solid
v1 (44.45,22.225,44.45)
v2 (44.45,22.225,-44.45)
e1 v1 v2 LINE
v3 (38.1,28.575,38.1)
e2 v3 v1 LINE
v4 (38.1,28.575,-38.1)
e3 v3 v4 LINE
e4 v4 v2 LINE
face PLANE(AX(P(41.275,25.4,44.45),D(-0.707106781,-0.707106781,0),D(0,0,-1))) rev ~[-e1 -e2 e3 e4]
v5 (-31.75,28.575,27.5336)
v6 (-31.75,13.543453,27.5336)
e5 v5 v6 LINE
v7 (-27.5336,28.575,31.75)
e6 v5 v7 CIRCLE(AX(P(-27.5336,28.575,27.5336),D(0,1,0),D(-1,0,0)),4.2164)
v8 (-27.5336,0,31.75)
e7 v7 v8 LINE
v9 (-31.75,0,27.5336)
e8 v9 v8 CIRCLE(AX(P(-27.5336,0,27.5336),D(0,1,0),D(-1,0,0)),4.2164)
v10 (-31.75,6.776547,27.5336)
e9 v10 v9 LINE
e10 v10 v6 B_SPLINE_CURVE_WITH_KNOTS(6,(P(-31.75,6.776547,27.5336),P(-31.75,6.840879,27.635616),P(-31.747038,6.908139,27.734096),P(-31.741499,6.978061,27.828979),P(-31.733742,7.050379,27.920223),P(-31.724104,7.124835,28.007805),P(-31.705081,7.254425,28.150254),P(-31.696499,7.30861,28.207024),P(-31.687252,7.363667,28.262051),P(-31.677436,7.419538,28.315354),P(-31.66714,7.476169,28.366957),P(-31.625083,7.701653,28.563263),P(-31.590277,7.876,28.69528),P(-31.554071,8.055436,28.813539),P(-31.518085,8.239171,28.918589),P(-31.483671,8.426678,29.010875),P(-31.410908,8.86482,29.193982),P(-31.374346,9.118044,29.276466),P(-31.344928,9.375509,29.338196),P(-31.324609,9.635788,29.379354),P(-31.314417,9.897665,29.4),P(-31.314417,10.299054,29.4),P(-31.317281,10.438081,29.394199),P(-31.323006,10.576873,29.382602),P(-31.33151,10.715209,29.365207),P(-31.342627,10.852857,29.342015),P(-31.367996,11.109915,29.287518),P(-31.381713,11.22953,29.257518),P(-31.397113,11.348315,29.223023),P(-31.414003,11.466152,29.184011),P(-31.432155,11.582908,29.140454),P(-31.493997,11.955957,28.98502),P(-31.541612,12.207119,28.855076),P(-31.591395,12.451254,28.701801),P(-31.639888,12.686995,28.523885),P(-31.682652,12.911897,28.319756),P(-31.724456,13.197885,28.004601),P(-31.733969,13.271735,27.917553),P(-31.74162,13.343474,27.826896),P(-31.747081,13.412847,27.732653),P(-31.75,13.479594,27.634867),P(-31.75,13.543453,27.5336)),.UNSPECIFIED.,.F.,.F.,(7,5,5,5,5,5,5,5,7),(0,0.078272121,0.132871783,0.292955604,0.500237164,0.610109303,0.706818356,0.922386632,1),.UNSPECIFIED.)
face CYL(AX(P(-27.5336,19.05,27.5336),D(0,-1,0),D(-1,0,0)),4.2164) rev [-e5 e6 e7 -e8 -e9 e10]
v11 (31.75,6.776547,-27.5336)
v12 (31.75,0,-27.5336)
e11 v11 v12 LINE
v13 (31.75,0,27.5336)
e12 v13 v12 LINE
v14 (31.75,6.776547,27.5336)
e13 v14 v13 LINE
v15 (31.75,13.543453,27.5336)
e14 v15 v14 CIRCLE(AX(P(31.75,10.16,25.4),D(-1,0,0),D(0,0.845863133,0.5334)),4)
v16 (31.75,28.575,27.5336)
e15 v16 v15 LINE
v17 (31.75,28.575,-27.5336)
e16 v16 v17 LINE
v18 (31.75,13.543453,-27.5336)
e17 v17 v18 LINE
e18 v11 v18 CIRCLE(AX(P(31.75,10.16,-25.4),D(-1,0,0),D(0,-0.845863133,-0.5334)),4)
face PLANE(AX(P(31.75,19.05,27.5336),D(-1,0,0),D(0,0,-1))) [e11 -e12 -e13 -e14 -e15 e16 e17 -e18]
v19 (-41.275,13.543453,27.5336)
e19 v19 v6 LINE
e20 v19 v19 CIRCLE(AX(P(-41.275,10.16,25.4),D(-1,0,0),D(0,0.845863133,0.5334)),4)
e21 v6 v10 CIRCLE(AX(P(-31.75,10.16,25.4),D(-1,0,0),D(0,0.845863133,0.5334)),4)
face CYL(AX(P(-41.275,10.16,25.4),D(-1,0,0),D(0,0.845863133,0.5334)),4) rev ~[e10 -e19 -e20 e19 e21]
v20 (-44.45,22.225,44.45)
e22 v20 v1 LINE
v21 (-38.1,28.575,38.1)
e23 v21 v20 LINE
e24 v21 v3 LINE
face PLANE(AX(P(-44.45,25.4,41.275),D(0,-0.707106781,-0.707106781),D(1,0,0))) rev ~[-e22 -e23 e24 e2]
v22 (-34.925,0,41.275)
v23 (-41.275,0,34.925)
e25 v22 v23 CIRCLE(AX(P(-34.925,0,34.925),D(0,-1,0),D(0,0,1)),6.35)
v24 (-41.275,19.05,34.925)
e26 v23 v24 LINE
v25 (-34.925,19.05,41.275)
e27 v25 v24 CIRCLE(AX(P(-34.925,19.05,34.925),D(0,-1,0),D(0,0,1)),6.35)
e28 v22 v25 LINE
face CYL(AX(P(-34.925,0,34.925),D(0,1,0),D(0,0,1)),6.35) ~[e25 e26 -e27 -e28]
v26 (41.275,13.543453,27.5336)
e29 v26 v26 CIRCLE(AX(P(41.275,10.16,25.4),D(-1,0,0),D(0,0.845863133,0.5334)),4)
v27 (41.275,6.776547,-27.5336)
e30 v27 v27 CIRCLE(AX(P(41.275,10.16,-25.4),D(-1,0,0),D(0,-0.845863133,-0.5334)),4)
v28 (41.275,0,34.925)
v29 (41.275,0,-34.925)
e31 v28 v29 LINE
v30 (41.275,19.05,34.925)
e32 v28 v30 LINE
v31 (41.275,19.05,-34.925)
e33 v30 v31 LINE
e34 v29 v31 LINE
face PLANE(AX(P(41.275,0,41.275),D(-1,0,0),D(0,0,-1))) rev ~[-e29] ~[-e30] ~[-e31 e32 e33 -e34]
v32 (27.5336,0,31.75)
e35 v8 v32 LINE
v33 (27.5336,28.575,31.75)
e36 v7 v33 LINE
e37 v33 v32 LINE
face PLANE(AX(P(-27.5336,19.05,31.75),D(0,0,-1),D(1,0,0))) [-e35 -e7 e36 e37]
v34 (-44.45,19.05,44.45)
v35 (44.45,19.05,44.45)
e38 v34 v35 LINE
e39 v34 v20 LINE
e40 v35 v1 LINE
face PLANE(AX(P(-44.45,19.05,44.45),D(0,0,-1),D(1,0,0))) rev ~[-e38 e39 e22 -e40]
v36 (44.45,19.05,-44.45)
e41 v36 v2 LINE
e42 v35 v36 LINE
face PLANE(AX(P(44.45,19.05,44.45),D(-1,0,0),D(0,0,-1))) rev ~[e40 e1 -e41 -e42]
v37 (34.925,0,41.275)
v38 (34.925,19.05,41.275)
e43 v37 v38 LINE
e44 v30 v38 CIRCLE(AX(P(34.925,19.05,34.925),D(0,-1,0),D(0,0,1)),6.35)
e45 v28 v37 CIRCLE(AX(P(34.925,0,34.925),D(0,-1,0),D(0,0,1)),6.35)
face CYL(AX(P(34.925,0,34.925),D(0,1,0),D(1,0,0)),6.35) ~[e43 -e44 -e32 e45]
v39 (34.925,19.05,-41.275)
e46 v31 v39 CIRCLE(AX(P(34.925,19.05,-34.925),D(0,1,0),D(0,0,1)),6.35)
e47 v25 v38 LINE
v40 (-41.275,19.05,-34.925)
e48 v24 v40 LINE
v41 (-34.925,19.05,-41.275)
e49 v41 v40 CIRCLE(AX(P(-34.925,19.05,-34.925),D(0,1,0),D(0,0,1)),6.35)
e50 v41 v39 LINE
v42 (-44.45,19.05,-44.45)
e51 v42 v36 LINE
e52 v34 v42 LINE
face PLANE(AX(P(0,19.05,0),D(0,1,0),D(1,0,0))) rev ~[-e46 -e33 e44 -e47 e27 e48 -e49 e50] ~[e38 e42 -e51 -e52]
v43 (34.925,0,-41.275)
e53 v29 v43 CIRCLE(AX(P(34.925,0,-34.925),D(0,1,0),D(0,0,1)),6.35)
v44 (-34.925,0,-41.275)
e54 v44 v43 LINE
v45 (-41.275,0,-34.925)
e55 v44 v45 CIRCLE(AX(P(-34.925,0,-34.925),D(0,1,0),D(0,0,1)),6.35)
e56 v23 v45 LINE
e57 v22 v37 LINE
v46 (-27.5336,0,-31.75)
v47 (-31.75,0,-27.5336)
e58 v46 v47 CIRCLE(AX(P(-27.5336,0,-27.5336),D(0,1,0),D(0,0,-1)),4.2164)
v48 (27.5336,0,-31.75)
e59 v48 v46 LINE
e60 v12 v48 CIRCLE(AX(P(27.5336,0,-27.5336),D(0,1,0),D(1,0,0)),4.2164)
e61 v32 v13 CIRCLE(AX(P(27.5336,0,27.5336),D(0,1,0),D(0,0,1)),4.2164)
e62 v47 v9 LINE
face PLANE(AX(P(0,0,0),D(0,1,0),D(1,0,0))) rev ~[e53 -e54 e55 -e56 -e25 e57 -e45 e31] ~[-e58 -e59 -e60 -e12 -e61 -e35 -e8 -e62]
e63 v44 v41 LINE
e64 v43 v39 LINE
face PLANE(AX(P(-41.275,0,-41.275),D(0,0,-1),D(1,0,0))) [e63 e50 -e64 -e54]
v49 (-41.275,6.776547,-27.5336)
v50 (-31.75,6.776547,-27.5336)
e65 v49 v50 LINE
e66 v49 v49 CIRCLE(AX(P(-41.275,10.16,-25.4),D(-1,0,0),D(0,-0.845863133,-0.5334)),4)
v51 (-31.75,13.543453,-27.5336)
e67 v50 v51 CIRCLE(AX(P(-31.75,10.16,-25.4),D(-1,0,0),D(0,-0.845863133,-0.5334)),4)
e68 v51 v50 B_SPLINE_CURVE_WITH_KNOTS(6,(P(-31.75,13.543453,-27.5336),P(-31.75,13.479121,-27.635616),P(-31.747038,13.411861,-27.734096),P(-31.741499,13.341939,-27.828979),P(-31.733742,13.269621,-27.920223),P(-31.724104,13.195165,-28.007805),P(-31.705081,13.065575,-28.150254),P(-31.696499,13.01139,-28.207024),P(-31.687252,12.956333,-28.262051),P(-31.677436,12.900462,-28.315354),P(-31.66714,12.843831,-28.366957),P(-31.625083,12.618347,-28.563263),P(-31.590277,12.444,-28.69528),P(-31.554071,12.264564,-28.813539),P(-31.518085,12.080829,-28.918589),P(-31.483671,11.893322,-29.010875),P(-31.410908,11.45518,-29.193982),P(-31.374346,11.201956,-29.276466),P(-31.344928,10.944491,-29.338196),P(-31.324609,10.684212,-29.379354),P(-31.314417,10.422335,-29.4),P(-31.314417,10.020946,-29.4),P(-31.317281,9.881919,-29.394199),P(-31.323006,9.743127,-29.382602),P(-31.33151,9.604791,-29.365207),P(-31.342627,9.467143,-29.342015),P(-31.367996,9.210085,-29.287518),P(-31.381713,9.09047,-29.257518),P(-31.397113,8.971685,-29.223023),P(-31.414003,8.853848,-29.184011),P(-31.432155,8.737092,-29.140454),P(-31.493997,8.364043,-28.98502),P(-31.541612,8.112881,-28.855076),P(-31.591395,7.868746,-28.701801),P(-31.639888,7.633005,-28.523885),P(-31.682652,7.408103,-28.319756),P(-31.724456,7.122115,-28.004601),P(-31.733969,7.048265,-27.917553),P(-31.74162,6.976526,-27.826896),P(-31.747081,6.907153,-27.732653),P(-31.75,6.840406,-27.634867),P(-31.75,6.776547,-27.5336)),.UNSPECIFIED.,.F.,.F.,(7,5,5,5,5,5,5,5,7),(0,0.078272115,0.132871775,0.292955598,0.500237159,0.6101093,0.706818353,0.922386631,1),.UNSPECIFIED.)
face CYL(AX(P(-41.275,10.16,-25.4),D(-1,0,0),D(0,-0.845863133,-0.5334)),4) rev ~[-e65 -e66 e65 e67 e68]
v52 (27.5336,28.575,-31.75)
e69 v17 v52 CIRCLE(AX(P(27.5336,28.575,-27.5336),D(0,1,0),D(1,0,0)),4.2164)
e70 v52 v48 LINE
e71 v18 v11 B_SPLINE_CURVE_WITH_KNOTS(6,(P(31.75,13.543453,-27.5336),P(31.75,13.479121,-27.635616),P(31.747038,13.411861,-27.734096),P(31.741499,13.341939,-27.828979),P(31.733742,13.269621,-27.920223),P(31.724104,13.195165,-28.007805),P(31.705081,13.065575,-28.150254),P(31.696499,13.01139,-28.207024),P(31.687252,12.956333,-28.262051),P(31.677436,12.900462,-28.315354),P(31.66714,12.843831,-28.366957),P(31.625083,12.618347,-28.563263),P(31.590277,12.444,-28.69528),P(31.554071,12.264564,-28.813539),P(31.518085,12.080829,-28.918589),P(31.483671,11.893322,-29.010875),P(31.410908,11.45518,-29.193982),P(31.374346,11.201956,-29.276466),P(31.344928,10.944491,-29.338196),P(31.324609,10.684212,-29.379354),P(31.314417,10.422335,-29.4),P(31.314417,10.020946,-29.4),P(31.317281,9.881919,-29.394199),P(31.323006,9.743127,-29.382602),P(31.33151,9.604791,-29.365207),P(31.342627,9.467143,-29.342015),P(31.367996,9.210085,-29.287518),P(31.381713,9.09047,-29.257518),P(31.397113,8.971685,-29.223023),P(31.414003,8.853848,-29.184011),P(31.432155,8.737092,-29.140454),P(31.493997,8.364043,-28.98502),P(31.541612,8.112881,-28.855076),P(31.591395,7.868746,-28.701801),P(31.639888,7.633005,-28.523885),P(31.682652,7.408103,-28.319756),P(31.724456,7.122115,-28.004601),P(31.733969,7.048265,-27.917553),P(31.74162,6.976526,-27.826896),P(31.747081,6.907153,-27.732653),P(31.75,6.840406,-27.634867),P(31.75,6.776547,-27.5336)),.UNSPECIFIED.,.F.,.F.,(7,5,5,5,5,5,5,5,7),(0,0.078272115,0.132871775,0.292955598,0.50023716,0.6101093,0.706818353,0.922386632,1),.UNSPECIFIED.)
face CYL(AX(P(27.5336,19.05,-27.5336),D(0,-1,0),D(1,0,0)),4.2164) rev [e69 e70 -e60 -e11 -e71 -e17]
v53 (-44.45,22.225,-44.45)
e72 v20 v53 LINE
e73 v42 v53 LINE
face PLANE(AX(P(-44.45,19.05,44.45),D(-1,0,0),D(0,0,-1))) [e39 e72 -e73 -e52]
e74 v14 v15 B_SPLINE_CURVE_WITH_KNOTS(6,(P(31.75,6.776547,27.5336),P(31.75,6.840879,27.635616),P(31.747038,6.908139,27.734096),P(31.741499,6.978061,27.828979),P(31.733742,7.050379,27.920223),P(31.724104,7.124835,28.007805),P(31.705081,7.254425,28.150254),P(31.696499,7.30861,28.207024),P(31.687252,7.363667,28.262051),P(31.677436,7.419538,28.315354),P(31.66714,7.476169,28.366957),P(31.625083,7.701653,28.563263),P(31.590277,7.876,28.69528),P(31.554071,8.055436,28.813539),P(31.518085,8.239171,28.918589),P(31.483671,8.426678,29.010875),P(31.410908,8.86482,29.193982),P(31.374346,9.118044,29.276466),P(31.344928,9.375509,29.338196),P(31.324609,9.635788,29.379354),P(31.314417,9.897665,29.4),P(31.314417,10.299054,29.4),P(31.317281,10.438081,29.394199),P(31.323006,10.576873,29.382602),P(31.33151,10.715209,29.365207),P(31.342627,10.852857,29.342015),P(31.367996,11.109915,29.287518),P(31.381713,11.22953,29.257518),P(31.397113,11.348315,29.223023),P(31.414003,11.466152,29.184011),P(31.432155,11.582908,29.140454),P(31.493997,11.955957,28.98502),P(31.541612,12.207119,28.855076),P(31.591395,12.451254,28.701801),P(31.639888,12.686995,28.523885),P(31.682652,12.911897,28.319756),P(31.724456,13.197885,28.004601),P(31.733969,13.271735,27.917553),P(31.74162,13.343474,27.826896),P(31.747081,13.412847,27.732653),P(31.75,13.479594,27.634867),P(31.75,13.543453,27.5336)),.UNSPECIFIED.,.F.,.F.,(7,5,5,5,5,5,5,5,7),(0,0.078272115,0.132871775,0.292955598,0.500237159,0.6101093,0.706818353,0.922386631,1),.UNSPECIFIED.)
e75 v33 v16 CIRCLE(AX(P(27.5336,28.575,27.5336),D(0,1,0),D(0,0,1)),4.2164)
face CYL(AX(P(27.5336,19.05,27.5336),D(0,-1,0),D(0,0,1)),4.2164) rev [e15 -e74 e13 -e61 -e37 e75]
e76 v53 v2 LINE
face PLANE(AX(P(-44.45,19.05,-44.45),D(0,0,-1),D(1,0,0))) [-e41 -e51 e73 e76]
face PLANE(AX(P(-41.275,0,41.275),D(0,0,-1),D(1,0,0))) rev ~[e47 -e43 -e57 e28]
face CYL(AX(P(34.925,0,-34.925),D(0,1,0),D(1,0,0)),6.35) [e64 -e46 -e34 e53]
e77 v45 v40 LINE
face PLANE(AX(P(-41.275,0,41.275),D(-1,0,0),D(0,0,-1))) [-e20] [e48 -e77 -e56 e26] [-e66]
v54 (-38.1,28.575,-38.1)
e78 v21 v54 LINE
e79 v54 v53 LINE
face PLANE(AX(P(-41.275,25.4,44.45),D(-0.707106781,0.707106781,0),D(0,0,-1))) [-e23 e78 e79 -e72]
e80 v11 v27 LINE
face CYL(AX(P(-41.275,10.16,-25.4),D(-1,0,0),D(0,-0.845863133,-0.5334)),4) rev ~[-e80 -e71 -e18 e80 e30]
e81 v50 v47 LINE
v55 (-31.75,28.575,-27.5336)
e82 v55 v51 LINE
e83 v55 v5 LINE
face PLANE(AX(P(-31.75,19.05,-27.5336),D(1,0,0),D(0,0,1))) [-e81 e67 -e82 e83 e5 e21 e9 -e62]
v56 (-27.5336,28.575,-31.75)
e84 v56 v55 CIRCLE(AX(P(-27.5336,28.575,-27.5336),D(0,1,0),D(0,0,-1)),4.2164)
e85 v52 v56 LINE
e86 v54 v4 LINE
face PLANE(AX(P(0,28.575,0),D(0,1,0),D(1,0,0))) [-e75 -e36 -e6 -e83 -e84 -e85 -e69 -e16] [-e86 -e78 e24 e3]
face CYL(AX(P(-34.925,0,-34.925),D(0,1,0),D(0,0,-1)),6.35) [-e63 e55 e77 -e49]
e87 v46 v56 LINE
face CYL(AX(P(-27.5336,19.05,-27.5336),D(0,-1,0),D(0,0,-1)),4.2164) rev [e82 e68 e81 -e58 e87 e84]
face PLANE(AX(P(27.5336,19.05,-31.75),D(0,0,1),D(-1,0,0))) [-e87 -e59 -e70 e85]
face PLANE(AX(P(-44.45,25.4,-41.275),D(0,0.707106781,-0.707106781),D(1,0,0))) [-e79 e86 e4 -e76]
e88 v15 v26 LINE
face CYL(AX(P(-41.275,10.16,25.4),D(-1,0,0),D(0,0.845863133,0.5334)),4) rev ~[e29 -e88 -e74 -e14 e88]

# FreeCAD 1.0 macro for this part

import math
import FreeCAD as App
import Part
import Sketcher
Q = App.Units.Quantity


def edges_at(feature, points):
    """Names of the edges that pass closest to the given points."""
    edges = feature.Shape.Edges
    near = lambda p: min(range(len(edges)), key=lambda i: edges[i].distToShape(Part.Vertex(*p))[0])
    return sorted({f"Edge{near(p) + 1}" for p in points})

doc = App.newDocument("Part")
body = doc.addObject("PartDesign::Body", "Body")

# Sketch on XZ plane
sketch1 = body.newObject("Sketcher::SketchObject", "Sketch")
sketch1.AttachmentSupport = (doc.getObject("XZ_Plane"), [""])
sketch1.MapMode = "FlatFace"
sketch1.addGeometry(Part.LineSegment(App.Vector(-41.3, -41.3, 0), App.Vector(-41.3, 41.3, 0)), False)
sketch1.addGeometry(Part.LineSegment(App.Vector(-41.3, 41.3, 0), App.Vector(41.3, 41.3, 0)), False)
sketch1.addGeometry(Part.LineSegment(App.Vector(41.3, 41.3, 0), App.Vector(41.3, -41.3, 0)), False)
sketch1.addGeometry(Part.LineSegment(App.Vector(41.3, -41.3, 0), App.Vector(-41.3, -41.3, 0)), False)
sketch1.addGeometry(Part.ArcOfCircle(Part.Circle(App.Vector(-27.5, -27.5, 0), App.Vector(0, 0, 1), 4.2), math.radians(-180), math.radians(-90)), False)
sketch1.addGeometry(Part.LineSegment(App.Vector(-27.5, -31.8, 0), App.Vector(27.5, -31.8, 0)), False)
sketch1.addGeometry(Part.ArcOfCircle(Part.Circle(App.Vector(27.5, -27.5, 0), App.Vector(0, 0, 1), 4.2), math.radians(-90), math.radians(0)), False)
sketch1.addGeometry(Part.LineSegment(App.Vector(31.8, -27.5, 0), App.Vector(31.8, 27.5, 0)), False)
sketch1.addGeometry(Part.ArcOfCircle(Part.Circle(App.Vector(27.5, 27.5, 0), App.Vector(0, 0, 1), 4.2), math.radians(0), math.radians(90)), False)
sketch1.addGeometry(Part.LineSegment(App.Vector(27.5, 31.8, 0), App.Vector(-27.5, 31.8, 0)), False)
sketch1.addGeometry(Part.ArcOfCircle(Part.Circle(App.Vector(-27.5, 27.5, 0), App.Vector(0, 0, 1), 4.2), math.radians(90), math.radians(180)), False)
sketch1.addGeometry(Part.LineSegment(App.Vector(-31.8, 27.5, 0), App.Vector(-31.8, -27.5, 0)), False)
sketch1.addConstraint(Sketcher.Constraint("Coincident", 0, 2, 1, 1))
sketch1.addConstraint(Sketcher.Constraint("Coincident", 1, 2, 2, 1))
sketch1.addConstraint(Sketcher.Constraint("Coincident", 2, 2, 3, 1))
sketch1.addConstraint(Sketcher.Constraint("Coincident", 3, 2, 0, 1))
sketch1.addConstraint(Sketcher.Constraint("Tangent", 4, 2, 5, 1))
sketch1.addConstraint(Sketcher.Constraint("Tangent", 5, 2, 6, 1))
sketch1.addConstraint(Sketcher.Constraint("Tangent", 6, 2, 7, 1))
sketch1.addConstraint(Sketcher.Constraint("Tangent", 7, 2, 8, 1))
sketch1.addConstraint(Sketcher.Constraint("Tangent", 8, 2, 9, 1))
sketch1.addConstraint(Sketcher.Constraint("Tangent", 9, 2, 10, 1))
sketch1.addConstraint(Sketcher.Constraint("Tangent", 10, 2, 11, 1))
sketch1.addConstraint(Sketcher.Constraint("Tangent", 11, 2, 4, 1))
sketch1.addConstraint(Sketcher.Constraint("Vertical", 0))
sketch1.addConstraint(Sketcher.Constraint("Horizontal", 1))
sketch1.addConstraint(Sketcher.Constraint("Vertical", 2))
sketch1.addConstraint(Sketcher.Constraint("Horizontal", 3))
sketch1.addConstraint(Sketcher.Constraint("Horizontal", 5))
sketch1.addConstraint(Sketcher.Constraint("Vertical", 7))
sketch1.addConstraint(Sketcher.Constraint("Horizontal", 9))
sketch1.addConstraint(Sketcher.Constraint("Vertical", 11))
sketch1.addConstraint(Sketcher.Constraint("Equal", 4, 6))
sketch1.addConstraint(Sketcher.Constraint("Equal", 6, 8))
sketch1.addConstraint(Sketcher.Constraint("Equal", 8, 10))
sketch1.addConstraint(Sketcher.Constraint("Symmetric", 4, 3, 8, 3, -1, 1))
sketch1.addConstraint(Sketcher.Constraint("Symmetric", 0, 2, 2, 2, -1, 1))
sketch1.addConstraint(Sketcher.Constraint("Equal", 3, 0))
sketch1.addConstraint(Sketcher.Constraint("Equal", 9, 7))
sketch1.addConstraint(Sketcher.Constraint("Radius", 4, Q("0.166 in")))
sketch1.addConstraint(Sketcher.Constraint("DistanceX", 1, 1, 1, 2, Q("3.25 in")))
sketch1.addConstraint(Sketcher.Constraint("DistanceX", 5, 1, 5, 2, Q("2.168 in")))
pad1 = body.newObject("PartDesign::Pad", "Pad")
pad1.Profile = sketch1
pad1.Length = Q("0.75 in")
pad1.Reversed = True

# Sketch on XZ plane
sketch2 = body.newObject("Sketcher::SketchObject", "Sketch001")
sketch2.AttachmentSupport = (doc.getObject("XZ_Plane"), [""])
sketch2.MapMode = "FlatFace"
sketch2.AttachmentOffset = App.Placement(App.Vector(0, 0, -0.75 * 25.4), App.Rotation())
sketch2.addGeometry(Part.LineSegment(App.Vector(-44.5, -44.5, 0), App.Vector(-44.5, 44.5, 0)), False)
sketch2.addGeometry(Part.LineSegment(App.Vector(-44.5, 44.5, 0), App.Vector(44.5, 44.5, 0)), False)
sketch2.addGeometry(Part.LineSegment(App.Vector(44.5, 44.5, 0), App.Vector(44.5, -44.5, 0)), False)
sketch2.addGeometry(Part.LineSegment(App.Vector(44.5, -44.5, 0), App.Vector(-44.5, -44.5, 0)), False)
sketch2.addGeometry(Part.ArcOfCircle(Part.Circle(App.Vector(27.5, 27.5, 0), App.Vector(0, 0, 1), 4.2), math.radians(0), math.radians(90)), False)
sketch2.addGeometry(Part.LineSegment(App.Vector(27.5, 31.8, 0), App.Vector(-27.5, 31.8, 0)), False)
sketch2.addGeometry(Part.ArcOfCircle(Part.Circle(App.Vector(-27.5, 27.5, 0), App.Vector(0, 0, 1), 4.2), math.radians(90), math.radians(180)), False)
sketch2.addGeometry(Part.LineSegment(App.Vector(-31.8, 27.5, 0), App.Vector(-31.8, -27.5, 0)), False)
sketch2.addGeometry(Part.ArcOfCircle(Part.Circle(App.Vector(-27.5, -27.5, 0), App.Vector(0, 0, 1), 4.2), math.radians(-180), math.radians(-90)), False)
sketch2.addGeometry(Part.LineSegment(App.Vector(-27.5, -31.8, 0), App.Vector(27.5, -31.8, 0)), False)
sketch2.addGeometry(Part.ArcOfCircle(Part.Circle(App.Vector(27.5, -27.5, 0), App.Vector(0, 0, 1), 4.2), math.radians(-90), math.radians(0)), False)
sketch2.addGeometry(Part.LineSegment(App.Vector(31.8, -27.5, 0), App.Vector(31.8, 27.5, 0)), False)
sketch2.addConstraint(Sketcher.Constraint("Coincident", 0, 2, 1, 1))
sketch2.addConstraint(Sketcher.Constraint("Coincident", 1, 2, 2, 1))
sketch2.addConstraint(Sketcher.Constraint("Coincident", 2, 2, 3, 1))
sketch2.addConstraint(Sketcher.Constraint("Coincident", 3, 2, 0, 1))
sketch2.addConstraint(Sketcher.Constraint("Tangent", 4, 2, 5, 1))
sketch2.addConstraint(Sketcher.Constraint("Tangent", 5, 2, 6, 1))
sketch2.addConstraint(Sketcher.Constraint("Tangent", 6, 2, 7, 1))
sketch2.addConstraint(Sketcher.Constraint("Tangent", 7, 2, 8, 1))
sketch2.addConstraint(Sketcher.Constraint("Tangent", 8, 2, 9, 1))
sketch2.addConstraint(Sketcher.Constraint("Tangent", 9, 2, 10, 1))
sketch2.addConstraint(Sketcher.Constraint("Tangent", 10, 2, 11, 1))
sketch2.addConstraint(Sketcher.Constraint("Tangent", 11, 2, 4, 1))
sketch2.addConstraint(Sketcher.Constraint("Vertical", 0))
sketch2.addConstraint(Sketcher.Constraint("Horizontal", 1))
sketch2.addConstraint(Sketcher.Constraint("Vertical", 2))
sketch2.addConstraint(Sketcher.Constraint("Horizontal", 3))
sketch2.addConstraint(Sketcher.Constraint("Horizontal", 5))
sketch2.addConstraint(Sketcher.Constraint("Vertical", 7))
sketch2.addConstraint(Sketcher.Constraint("Horizontal", 9))
sketch2.addConstraint(Sketcher.Constraint("Vertical", 11))
sketch2.addConstraint(Sketcher.Constraint("Equal", 4, 6))
sketch2.addConstraint(Sketcher.Constraint("Equal", 6, 8))
sketch2.addConstraint(Sketcher.Constraint("Equal", 8, 10))
sketch2.addConstraint(Sketcher.Constraint("Symmetric", 4, 3, 8, 3, -1, 1))
sketch2.addConstraint(Sketcher.Constraint("Symmetric", 0, 2, 2, 2, -1, 1))
sketch2.addConstraint(Sketcher.Constraint("Equal", 3, 0))
sketch2.addConstraint(Sketcher.Constraint("Equal", 9, 7))
sketch2.addConstraint(Sketcher.Constraint("DistanceX", 1, 1, 1, 2, Q("3.5 in")))
sketch2.addConstraint(Sketcher.Constraint("Radius", 4, Q("0.166 in")))
sketch2.addConstraint(Sketcher.Constraint("DistanceY", 4, 2, 1, 2, Q("0.5 in")))
pad2 = body.newObject("PartDesign::Pad", "Pad001")
pad2.Profile = sketch2
pad2.Length = Q("0.375 in")
pad2.Reversed = True
doc.recompute()

fillet = body.newObject("PartDesign::Fillet", "Fillet")
fillet.Base = (pad2, edges_at(pad2, [
    (41.275, 9.525, -41.275),
    (41.275, 9.525, 41.275),
    (-41.275, 9.525, 41.275),
    (-41.275, 9.525, -41.275),
]))
fillet.Radius = Q("0.25 in")
doc.recompute()

chamfer = body.newObject("PartDesign::Chamfer", "Chamfer")
chamfer.Base = (fillet, edges_at(fillet, [
    (44.45, 28.575, 0),
    (0, 28.575, 44.45),
    (0, 28.575, -44.45),
    (-44.45, 28.575, 0),
]))
chamfer.Size = Q("0.25 in")

# Sketch on YZ plane
sketch3 = body.newObject("Sketcher::SketchObject", "Sketch002")
sketch3.AttachmentSupport = (doc.getObject("YZ_Plane"), [""])
sketch3.MapMode = "FlatFace"
sketch3.AttachmentOffset = App.Placement(App.Vector(0, 0, -1.625 * 25.4), App.Rotation())
sketch3.addGeometry(Part.Circle(App.Vector(10.2, -25.4, 0), App.Vector(0, 0, 1), 4), False)
sketch3.addGeometry(Part.Circle(App.Vector(10.2, 25.4, 0), App.Vector(0, 0, 1), 4), False)
sketch3.addConstraint(Sketcher.Constraint("Equal", 0, 1))
sketch3.addConstraint(Sketcher.Constraint("Symmetric", 0, 3, 1, 3, -1))
sketch3.addConstraint(Sketcher.Constraint("DistanceY", 0, 3, -1, 1, Q("1 in")))
sketch3.addConstraint(Sketcher.Constraint("DistanceX", -1, 1, 0, 3, Q("0.4 in")))
sketch3.addConstraint(Sketcher.Constraint("Diameter", 0, Q("8 mm")))
pocket1 = body.newObject("PartDesign::Pocket", "Pocket")
pocket1.Profile = sketch3
pocket1.Type = "ThroughAll"
pocket1.Reversed = True

doc.recompute()
